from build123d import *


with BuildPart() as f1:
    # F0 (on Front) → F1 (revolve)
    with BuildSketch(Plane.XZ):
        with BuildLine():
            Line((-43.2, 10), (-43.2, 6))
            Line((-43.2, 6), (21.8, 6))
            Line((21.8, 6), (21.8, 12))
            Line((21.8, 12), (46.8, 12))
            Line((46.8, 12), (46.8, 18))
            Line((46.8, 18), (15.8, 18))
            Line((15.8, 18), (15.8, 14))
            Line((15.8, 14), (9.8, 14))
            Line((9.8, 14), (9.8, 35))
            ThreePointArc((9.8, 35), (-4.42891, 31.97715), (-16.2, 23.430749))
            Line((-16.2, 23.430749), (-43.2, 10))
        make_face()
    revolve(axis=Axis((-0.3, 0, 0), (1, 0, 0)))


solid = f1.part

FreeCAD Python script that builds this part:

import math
import FreeCAD as App
import Part
import Sketcher
Q = App.Units.Quantity

doc = App.newDocument("Part")
body = doc.addObject("PartDesign::Body", "Body")

# Sketch on XZ plane
sketch1 = doc.addObject("Sketcher::SketchObject", "Sketch")
body.addObject(sketch1)
sketch1.AttachmentSupport = (doc.XZ_Plane, [""])
sketch1.MapMode = "FlatFace"
sketch1.addGeometry([
    Part.LineSegment(App.Vector(-43.2, 10, 0), App.Vector(-43.2, 6, 0)),  # 0
    Part.LineSegment(App.Vector(-43.2, 6, 0), App.Vector(21.8, 6, 0)),  # 1
    Part.LineSegment(App.Vector(21.8, 6, 0), App.Vector(21.8, 12, 0)),  # 2
    Part.LineSegment(App.Vector(21.8, 12, 0), App.Vector(46.8, 12, 0)),  # 3
    Part.LineSegment(App.Vector(46.8, 12, 0), App.Vector(46.8, 18, 0)),  # 4
    Part.LineSegment(App.Vector(46.8, 18, 0), App.Vector(15.8, 18, 0)),  # 5
    Part.LineSegment(App.Vector(15.8, 18, 0), App.Vector(15.8, 14, 0)),  # 6
    Part.LineSegment(App.Vector(15.8, 14, 0), App.Vector(9.8, 14, 0)),  # 7
    Part.LineSegment(App.Vector(9.8, 14, 0), App.Vector(9.8, 35, 0)),  # 8
    Part.ArcOfCircle(Part.Circle(App.Vector(9.8, 0, 0), App.Vector(0, 0, 1), 35), math.radians(90), math.radians(138)),  # 9
    Part.LineSegment(App.Vector(-16.2, 23.4, 0), App.Vector(-43.2, 10, 0)),  # 10
], False)
sketch1.addConstraint([
    Sketcher.Constraint("Coincident", 0, 2, 1, 1),
    Sketcher.Constraint("Coincident", 1, 2, 2, 1),
    Sketcher.Constraint("Coincident", 2, 2, 3, 1),
    Sketcher.Constraint("Coincident", 3, 2, 4, 1),
    Sketcher.Constraint("Coincident", 4, 2, 5, 1),
    Sketcher.Constraint("Coincident", 5, 2, 6, 1),
    Sketcher.Constraint("Coincident", 6, 2, 7, 1),
    Sketcher.Constraint("Coincident", 7, 2, 8, 1),
    Sketcher.Constraint("Coincident", 8, 2, 9, 1),
    Sketcher.Constraint("Coincident", 9, 2, 10, 1),
    Sketcher.Constraint("Coincident", 10, 2, 0, 1),
    Sketcher.Constraint("Vertical", 0),
    Sketcher.Constraint("Horizontal", 1),
    Sketcher.Constraint("Vertical", 2),
    Sketcher.Constraint("Horizontal", 3),
    Sketcher.Constraint("Vertical", 4),
    Sketcher.Constraint("Horizontal", 5),
    Sketcher.Constraint("Vertical", 6),
    Sketcher.Constraint("Horizontal", 7),
    Sketcher.Constraint("Vertical", 8),
    Sketcher.Constraint("PointOnObject", 9, 3, -1),
    Sketcher.Constraint("Vertical", 9, 3, 7, 2),
    Sketcher.Constraint("Equal", 7, 2),
    Sketcher.Constraint("Equal", 2, 4),
    Sketcher.Constraint("Equal", 0, 6),
    Sketcher.Constraint("Radius", 9, Q("35 mm")),
    Sketcher.Constraint("DistanceX", 1, 1, 1, 2, Q("65 mm")),
    Sketcher.Constraint("DistanceX", 3, 1, 3, 2, Q("25 mm")),
    Sketcher.Constraint("DistanceX", 5, 2, 5, 1, Q("31 mm")),
    Sketcher.Constraint("DistanceX", 7, 2, 7, 1, Q("6 mm")),
    Sketcher.Constraint("DistanceY", 0, 2, 0, 1, Q("4 mm")),
    Sketcher.Constraint("DistanceY", 8, 1, 8, 2, Q("21 mm")),
    Sketcher.Constraint("DistanceX", 9, 2, 7, 2, Q("26 mm")),
    Sketcher.Constraint("DistanceX", -1, 1, 9, 3, Q("9.8 mm")),
])
revolution = doc.addObject("PartDesign::Revolution", "Revolution")
body.addObject(revolution)
revolution.Profile = sketch1
revolution.ReferenceAxis = (sketch1, ["H_Axis"])
revolution.Angle = 360

doc.recompute()
